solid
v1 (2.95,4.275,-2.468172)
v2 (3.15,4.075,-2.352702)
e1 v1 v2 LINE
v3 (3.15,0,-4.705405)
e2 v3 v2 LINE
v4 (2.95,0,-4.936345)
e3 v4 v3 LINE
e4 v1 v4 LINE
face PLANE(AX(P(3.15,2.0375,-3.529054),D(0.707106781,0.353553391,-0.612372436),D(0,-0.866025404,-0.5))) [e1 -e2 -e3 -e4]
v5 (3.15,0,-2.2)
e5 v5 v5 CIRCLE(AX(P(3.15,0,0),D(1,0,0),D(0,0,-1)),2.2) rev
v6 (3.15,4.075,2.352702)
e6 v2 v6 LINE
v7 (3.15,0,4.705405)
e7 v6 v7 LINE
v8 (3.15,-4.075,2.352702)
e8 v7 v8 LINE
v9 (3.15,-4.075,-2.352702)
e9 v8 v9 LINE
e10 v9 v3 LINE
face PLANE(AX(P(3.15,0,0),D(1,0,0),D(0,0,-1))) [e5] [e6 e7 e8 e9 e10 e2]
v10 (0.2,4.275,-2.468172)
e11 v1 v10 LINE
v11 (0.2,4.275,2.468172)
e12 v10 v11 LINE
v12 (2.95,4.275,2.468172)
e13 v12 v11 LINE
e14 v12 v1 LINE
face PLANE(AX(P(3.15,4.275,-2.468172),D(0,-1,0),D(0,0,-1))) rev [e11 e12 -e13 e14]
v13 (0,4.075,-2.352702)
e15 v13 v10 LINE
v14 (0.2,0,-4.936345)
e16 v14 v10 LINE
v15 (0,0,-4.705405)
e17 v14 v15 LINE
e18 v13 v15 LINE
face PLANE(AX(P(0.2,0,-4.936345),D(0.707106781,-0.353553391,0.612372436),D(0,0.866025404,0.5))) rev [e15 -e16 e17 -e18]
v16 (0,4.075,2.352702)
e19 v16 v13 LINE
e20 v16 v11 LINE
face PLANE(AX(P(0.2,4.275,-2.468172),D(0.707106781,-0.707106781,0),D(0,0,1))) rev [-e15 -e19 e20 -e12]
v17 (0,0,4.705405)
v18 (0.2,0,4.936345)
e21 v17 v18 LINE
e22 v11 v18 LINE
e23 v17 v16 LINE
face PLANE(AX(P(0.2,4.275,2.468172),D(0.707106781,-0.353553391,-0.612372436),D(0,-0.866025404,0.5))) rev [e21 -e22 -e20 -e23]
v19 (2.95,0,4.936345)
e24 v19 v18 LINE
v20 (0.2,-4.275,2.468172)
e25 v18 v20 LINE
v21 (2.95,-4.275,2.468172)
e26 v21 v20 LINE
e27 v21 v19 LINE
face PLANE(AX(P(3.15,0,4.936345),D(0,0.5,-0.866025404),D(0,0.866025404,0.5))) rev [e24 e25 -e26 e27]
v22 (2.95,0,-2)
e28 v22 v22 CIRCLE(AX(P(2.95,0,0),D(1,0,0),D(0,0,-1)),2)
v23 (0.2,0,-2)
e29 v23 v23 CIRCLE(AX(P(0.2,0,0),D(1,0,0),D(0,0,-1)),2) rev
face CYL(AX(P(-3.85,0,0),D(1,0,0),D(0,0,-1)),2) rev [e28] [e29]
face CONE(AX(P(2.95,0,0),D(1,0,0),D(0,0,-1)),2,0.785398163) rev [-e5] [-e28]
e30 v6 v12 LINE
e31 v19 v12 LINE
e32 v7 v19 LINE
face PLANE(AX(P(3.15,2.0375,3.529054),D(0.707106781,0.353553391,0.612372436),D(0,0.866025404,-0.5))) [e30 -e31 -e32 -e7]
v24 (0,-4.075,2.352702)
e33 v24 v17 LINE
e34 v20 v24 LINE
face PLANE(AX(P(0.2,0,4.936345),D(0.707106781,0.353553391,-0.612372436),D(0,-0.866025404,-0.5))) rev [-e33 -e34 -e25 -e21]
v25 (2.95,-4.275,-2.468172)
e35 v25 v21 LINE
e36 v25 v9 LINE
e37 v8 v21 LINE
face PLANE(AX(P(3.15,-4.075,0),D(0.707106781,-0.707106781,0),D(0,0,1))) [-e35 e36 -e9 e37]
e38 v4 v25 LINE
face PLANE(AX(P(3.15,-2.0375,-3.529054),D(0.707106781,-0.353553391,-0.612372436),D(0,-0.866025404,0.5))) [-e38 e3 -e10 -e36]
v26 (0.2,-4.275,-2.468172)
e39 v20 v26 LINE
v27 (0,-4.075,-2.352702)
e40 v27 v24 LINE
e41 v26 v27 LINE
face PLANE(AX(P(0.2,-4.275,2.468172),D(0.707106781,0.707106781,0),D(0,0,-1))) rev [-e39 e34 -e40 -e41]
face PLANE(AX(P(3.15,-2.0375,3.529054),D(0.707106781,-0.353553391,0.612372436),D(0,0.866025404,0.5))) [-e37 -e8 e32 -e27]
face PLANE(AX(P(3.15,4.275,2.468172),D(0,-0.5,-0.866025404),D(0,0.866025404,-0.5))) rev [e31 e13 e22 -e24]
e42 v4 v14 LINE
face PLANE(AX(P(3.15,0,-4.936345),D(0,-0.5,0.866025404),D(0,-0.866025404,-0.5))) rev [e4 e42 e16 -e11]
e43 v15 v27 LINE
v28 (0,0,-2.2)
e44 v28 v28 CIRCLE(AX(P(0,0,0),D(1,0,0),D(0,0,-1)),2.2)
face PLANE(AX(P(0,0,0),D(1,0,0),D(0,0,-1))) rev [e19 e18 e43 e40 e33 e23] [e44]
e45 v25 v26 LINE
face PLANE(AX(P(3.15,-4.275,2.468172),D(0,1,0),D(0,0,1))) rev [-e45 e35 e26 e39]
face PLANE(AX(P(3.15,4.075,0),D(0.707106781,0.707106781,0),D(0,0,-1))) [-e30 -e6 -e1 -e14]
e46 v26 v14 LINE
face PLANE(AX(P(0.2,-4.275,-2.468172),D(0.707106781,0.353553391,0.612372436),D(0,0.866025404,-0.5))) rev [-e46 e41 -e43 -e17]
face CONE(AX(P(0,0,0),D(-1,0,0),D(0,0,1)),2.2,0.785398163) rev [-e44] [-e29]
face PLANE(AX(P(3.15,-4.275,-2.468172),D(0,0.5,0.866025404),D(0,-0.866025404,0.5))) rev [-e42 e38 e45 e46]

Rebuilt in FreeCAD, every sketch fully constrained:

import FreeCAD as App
import Part
import Sketcher
Q = App.Units.Quantity


def edges_at(feature, points):
    """Names of the edges that pass closest to the given points."""
    edges = feature.Shape.Edges
    near = lambda p: min(range(len(edges)), key=lambda i: edges[i].distToShape(Part.Vertex(*p))[0])
    return sorted({f"Edge{near(p) + 1}" for p in points})


def add_polygon(sketch, points):
    """Adds a closed chain of lines whose ends are joined by coincident constraints."""
    first, n = sketch.GeometryCount, len(points)
    for a, b in zip(points, points[1:] + points[:1]):
        sketch.addGeometry(Part.LineSegment(App.Vector(*a, 0), App.Vector(*b, 0)), False)
    for i in range(n):
        sketch.addConstraint(Sketcher.Constraint("Coincident", first + i, 2, first + (i + 1) % n, 1))

doc = App.newDocument("Part")
body = doc.addObject("PartDesign::Body", "Body")

# Sketch on YZ plane
sketch1 = body.newObject("Sketcher::SketchObject", "Sketch")
sketch1.AttachmentSupport = (doc.getObject("YZ_Plane"), [""])
sketch1.MapMode = "FlatFace"
add_polygon(sketch1, [(0, -4.936345), (4.275, -2.468172), (4.275, 2.468172), (0, 4.936345), (-4.275, 2.468172), (-4.275, -2.468172)])  # lines 0-5
sketch1.addConstraint([
    Sketcher.Constraint("Vertical", 1),
    Sketcher.Constraint("Vertical", 4),
    Sketcher.Constraint("Symmetric", 0, 2, 3, 2, -1, 1),
    Sketcher.Constraint("Symmetric", 2, 2, 5, 2, -1, 1),
    Sketcher.Constraint("PointOnObject", 2, 2, -2),
    Sketcher.Constraint("Parallel", 2, 5),
    Sketcher.Constraint("Horizontal", 1, 2, 3, 2),
    Sketcher.Constraint("Angle", 0, Q("30 deg")),
    Sketcher.Constraint("DistanceX", 3, 2, 1, 2, Q("8.55 mm")),
    Sketcher.Constraint("DistanceY", 1, 1, 1, 2, Q("4.936345 mm")),
])
pad1 = body.newObject("PartDesign::Pad", "Pad")
pad1.Profile = sketch1
pad1.Length = 3.15

# Sketch on YZ plane
sketch2 = body.newObject("Sketcher::SketchObject", "Sketch001")
sketch2.AttachmentSupport = (doc.getObject("YZ_Plane"), [""])
sketch2.MapMode = "FlatFace"
sketch2.AttachmentOffset = App.Placement(App.Vector(0, 0, 3.15), App.Rotation())
sketch2.addGeometry(Part.Circle(App.Vector(0, 0, 0), App.Vector(0, 0, 1), 2), False)
sketch2.addConstraint([
    Sketcher.Constraint("Coincident", 0, 3, -1, 1),
    Sketcher.Constraint("Diameter", 0, Q("4 mm")),
])
pocket1 = body.newObject("PartDesign::Pocket", "Pocket")
pocket1.Profile = sketch2
pocket1.Length = 7
doc.recompute()

chamfer = body.newObject("PartDesign::Chamfer", "Chamfer")
chamfer.Base = (pocket1, edges_at(pocket1, [
    (3.15, 4.275, 0),
    (3.15, 2.138, 3.702),
    (3.15, -2.138, 3.702),
    (3.15, -4.275, 0),
    (0, 0, 2),
    (3.15, 0, 2),
    (3.15, -2.138, -3.702),
    (0, -4.275, 0),
    (0, -2.138, 3.702),
    (0, 2.138, 3.702),
    (3.15, 2.138, -3.702),
    (0, 4.275, 0),
    (0, 2.138, -3.702),
    (0, -2.138, -3.702),
]))
chamfer.Size = 0.2

doc.recompute()
